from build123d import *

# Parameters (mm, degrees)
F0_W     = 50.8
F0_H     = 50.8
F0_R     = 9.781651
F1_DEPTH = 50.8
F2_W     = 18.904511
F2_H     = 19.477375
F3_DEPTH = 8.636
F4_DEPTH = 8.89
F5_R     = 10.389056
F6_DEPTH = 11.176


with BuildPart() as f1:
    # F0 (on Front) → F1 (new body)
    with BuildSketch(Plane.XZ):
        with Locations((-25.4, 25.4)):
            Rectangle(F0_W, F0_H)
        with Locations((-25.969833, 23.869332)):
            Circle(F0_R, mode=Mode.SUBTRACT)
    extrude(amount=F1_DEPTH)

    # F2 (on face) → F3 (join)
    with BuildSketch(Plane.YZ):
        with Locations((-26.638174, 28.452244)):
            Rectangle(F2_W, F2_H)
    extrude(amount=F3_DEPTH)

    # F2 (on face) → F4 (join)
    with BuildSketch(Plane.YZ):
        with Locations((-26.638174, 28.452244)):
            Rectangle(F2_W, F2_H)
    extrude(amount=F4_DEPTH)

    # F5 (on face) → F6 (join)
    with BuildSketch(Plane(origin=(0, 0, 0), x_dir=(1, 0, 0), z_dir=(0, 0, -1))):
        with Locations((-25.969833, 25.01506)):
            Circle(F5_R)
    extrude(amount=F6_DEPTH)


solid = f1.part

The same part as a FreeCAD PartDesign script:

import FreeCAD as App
import Part
import Sketcher

V = App.Vector
Q = App.Units.Quantity

doc = App.newDocument("Part")
body = doc.addObject("PartDesign::Body", "Body")

sketch1 = body.newObject("Sketcher::SketchObject", "Sketch")
sketch1.AttachmentSupport = (doc.getObject("XZ_Plane"), [""])
sketch1.MapMode = "FlatFace"
sketch1.addGeometry([
    Part.LineSegment(V(-51, 51, 0), V(-51, 0, 0)),
    Part.LineSegment(V(-51, 0, 0), V(0, 0, 0)),
    Part.LineSegment(V(0, 0, 0), V(0, 51, 0)),
    Part.LineSegment(V(0, 51, 0), V(-51, 51, 0)),
    Part.Circle(V(-26, 24, 0), V(0, 0, 1), 10),
], False)
sketch1.addConstraint([
    Sketcher.Constraint("Coincident", 0, 2, 1, 1),
    Sketcher.Constraint("Coincident", 1, 2, 2, 1),
    Sketcher.Constraint("Coincident", 2, 2, 3, 1),
    Sketcher.Constraint("Coincident", 3, 2, 0, 1),
    Sketcher.Constraint("Vertical", 0),
    Sketcher.Constraint("Horizontal", 1),
    Sketcher.Constraint("Vertical", 2),
    Sketcher.Constraint("Horizontal", 3),
    Sketcher.Constraint("Coincident", 1, 2, -1, 1),
    Sketcher.Constraint("Equal", 3, 0),
    Sketcher.Constraint("DistanceX", 1, 1, 1, 2, Q("2 in")),
    Sketcher.Constraint("Diameter", 4, 19.563302),
    Sketcher.Constraint("DistanceY", -1, 1, 4, 3, 23.869332),
    Sketcher.Constraint("DistanceX", 4, 3, -1, 1, 25.969833),
])
pad1 = body.newObject("PartDesign::Pad", "Pad")
pad1.Profile = sketch1
pad1.Length = Q("2 in")

sketch2 = body.newObject("Sketcher::SketchObject", "Sketch001")
sketch2.AttachmentSupport = (doc.getObject("YZ_Plane"), [""])
sketch2.MapMode = "FlatFace"
sketch2.addGeometry([
    Part.LineSegment(V(-36, 38, 0), V(-36, 19, 0)),
    Part.LineSegment(V(-36, 19, 0), V(-17, 19, 0)),
    Part.LineSegment(V(-17, 19, 0), V(-17, 38, 0)),
    Part.LineSegment(V(-17, 38, 0), V(-36, 38, 0)),
], False)
sketch2.addConstraint([
    Sketcher.Constraint("Coincident", 0, 2, 1, 1),
    Sketcher.Constraint("Coincident", 1, 2, 2, 1),
    Sketcher.Constraint("Coincident", 2, 2, 3, 1),
    Sketcher.Constraint("Coincident", 3, 2, 0, 1),
    Sketcher.Constraint("Vertical", 0),
    Sketcher.Constraint("Horizontal", 1),
    Sketcher.Constraint("Vertical", 2),
    Sketcher.Constraint("Horizontal", 3),
    Sketcher.Constraint("DistanceX", 1, 1, 1, 2, 18.904511),
    Sketcher.Constraint("DistanceY", 0, 2, 0, 1, 19.477375),
    Sketcher.Constraint("DistanceX", 0, 2, -1, 1, 36.090429),
    Sketcher.Constraint("DistanceY", -1, 1, 2, 2, 38.190931),
])
pad2 = body.newObject("PartDesign::Pad", "Pad001")
pad2.Profile = sketch2
pad2.Length = Q("0.34 in")

sketch3 = body.newObject("Sketcher::SketchObject", "Sketch002")
sketch3.AttachmentSupport = (doc.getObject("YZ_Plane"), [""])
sketch3.MapMode = "FlatFace"
sketch3.addGeometry([
    Part.LineSegment(V(-36, 38, 0), V(-36, 19, 0)),
    Part.LineSegment(V(-36, 19, 0), V(-17, 19, 0)),
    Part.LineSegment(V(-17, 19, 0), V(-17, 38, 0)),
    Part.LineSegment(V(-17, 38, 0), V(-36, 38, 0)),
], False)
sketch3.addConstraint([
    Sketcher.Constraint("Coincident", 0, 2, 1, 1),
    Sketcher.Constraint("Coincident", 1, 2, 2, 1),
    Sketcher.Constraint("Coincident", 2, 2, 3, 1),
    Sketcher.Constraint("Coincident", 3, 2, 0, 1),
    Sketcher.Constraint("Vertical", 0),
    Sketcher.Constraint("Horizontal", 1),
    Sketcher.Constraint("Vertical", 2),
    Sketcher.Constraint("Horizontal", 3),
    Sketcher.Constraint("DistanceX", 1, 1, 1, 2, 18.904511),
    Sketcher.Constraint("DistanceY", 0, 2, 0, 1, 19.477375),
    Sketcher.Constraint("DistanceX", 0, 2, -1, 1, 36.090429),
    Sketcher.Constraint("DistanceY", -1, 1, 2, 2, 38.190931),
])
pad3 = body.newObject("PartDesign::Pad", "Pad002")
pad3.Profile = sketch3
pad3.Length = Q("0.35 in")

sketch4 = body.newObject("Sketcher::SketchObject", "Sketch003")
sketch4.AttachmentSupport = (doc.getObject("XY_Plane"), [""])
sketch4.MapMode = "FlatFace"
sketch4.addGeometry(Part.Circle(V(-26, -25, 0), V(0, 0, 1), 10), False)
sketch4.addConstraint([
    Sketcher.Constraint("Diameter", 0, 20.778112),
    Sketcher.Constraint("DistanceY", 0, 3, -1, 1, 25.01506),
    Sketcher.Constraint("DistanceX", 0, 3, -1, 1, 25.969833),
])
pad4 = body.newObject("PartDesign::Pad", "Pad003")
pad4.Profile = sketch4
pad4.Length = Q("0.44 in")
pad4.Reversed = True

doc.recompute()
